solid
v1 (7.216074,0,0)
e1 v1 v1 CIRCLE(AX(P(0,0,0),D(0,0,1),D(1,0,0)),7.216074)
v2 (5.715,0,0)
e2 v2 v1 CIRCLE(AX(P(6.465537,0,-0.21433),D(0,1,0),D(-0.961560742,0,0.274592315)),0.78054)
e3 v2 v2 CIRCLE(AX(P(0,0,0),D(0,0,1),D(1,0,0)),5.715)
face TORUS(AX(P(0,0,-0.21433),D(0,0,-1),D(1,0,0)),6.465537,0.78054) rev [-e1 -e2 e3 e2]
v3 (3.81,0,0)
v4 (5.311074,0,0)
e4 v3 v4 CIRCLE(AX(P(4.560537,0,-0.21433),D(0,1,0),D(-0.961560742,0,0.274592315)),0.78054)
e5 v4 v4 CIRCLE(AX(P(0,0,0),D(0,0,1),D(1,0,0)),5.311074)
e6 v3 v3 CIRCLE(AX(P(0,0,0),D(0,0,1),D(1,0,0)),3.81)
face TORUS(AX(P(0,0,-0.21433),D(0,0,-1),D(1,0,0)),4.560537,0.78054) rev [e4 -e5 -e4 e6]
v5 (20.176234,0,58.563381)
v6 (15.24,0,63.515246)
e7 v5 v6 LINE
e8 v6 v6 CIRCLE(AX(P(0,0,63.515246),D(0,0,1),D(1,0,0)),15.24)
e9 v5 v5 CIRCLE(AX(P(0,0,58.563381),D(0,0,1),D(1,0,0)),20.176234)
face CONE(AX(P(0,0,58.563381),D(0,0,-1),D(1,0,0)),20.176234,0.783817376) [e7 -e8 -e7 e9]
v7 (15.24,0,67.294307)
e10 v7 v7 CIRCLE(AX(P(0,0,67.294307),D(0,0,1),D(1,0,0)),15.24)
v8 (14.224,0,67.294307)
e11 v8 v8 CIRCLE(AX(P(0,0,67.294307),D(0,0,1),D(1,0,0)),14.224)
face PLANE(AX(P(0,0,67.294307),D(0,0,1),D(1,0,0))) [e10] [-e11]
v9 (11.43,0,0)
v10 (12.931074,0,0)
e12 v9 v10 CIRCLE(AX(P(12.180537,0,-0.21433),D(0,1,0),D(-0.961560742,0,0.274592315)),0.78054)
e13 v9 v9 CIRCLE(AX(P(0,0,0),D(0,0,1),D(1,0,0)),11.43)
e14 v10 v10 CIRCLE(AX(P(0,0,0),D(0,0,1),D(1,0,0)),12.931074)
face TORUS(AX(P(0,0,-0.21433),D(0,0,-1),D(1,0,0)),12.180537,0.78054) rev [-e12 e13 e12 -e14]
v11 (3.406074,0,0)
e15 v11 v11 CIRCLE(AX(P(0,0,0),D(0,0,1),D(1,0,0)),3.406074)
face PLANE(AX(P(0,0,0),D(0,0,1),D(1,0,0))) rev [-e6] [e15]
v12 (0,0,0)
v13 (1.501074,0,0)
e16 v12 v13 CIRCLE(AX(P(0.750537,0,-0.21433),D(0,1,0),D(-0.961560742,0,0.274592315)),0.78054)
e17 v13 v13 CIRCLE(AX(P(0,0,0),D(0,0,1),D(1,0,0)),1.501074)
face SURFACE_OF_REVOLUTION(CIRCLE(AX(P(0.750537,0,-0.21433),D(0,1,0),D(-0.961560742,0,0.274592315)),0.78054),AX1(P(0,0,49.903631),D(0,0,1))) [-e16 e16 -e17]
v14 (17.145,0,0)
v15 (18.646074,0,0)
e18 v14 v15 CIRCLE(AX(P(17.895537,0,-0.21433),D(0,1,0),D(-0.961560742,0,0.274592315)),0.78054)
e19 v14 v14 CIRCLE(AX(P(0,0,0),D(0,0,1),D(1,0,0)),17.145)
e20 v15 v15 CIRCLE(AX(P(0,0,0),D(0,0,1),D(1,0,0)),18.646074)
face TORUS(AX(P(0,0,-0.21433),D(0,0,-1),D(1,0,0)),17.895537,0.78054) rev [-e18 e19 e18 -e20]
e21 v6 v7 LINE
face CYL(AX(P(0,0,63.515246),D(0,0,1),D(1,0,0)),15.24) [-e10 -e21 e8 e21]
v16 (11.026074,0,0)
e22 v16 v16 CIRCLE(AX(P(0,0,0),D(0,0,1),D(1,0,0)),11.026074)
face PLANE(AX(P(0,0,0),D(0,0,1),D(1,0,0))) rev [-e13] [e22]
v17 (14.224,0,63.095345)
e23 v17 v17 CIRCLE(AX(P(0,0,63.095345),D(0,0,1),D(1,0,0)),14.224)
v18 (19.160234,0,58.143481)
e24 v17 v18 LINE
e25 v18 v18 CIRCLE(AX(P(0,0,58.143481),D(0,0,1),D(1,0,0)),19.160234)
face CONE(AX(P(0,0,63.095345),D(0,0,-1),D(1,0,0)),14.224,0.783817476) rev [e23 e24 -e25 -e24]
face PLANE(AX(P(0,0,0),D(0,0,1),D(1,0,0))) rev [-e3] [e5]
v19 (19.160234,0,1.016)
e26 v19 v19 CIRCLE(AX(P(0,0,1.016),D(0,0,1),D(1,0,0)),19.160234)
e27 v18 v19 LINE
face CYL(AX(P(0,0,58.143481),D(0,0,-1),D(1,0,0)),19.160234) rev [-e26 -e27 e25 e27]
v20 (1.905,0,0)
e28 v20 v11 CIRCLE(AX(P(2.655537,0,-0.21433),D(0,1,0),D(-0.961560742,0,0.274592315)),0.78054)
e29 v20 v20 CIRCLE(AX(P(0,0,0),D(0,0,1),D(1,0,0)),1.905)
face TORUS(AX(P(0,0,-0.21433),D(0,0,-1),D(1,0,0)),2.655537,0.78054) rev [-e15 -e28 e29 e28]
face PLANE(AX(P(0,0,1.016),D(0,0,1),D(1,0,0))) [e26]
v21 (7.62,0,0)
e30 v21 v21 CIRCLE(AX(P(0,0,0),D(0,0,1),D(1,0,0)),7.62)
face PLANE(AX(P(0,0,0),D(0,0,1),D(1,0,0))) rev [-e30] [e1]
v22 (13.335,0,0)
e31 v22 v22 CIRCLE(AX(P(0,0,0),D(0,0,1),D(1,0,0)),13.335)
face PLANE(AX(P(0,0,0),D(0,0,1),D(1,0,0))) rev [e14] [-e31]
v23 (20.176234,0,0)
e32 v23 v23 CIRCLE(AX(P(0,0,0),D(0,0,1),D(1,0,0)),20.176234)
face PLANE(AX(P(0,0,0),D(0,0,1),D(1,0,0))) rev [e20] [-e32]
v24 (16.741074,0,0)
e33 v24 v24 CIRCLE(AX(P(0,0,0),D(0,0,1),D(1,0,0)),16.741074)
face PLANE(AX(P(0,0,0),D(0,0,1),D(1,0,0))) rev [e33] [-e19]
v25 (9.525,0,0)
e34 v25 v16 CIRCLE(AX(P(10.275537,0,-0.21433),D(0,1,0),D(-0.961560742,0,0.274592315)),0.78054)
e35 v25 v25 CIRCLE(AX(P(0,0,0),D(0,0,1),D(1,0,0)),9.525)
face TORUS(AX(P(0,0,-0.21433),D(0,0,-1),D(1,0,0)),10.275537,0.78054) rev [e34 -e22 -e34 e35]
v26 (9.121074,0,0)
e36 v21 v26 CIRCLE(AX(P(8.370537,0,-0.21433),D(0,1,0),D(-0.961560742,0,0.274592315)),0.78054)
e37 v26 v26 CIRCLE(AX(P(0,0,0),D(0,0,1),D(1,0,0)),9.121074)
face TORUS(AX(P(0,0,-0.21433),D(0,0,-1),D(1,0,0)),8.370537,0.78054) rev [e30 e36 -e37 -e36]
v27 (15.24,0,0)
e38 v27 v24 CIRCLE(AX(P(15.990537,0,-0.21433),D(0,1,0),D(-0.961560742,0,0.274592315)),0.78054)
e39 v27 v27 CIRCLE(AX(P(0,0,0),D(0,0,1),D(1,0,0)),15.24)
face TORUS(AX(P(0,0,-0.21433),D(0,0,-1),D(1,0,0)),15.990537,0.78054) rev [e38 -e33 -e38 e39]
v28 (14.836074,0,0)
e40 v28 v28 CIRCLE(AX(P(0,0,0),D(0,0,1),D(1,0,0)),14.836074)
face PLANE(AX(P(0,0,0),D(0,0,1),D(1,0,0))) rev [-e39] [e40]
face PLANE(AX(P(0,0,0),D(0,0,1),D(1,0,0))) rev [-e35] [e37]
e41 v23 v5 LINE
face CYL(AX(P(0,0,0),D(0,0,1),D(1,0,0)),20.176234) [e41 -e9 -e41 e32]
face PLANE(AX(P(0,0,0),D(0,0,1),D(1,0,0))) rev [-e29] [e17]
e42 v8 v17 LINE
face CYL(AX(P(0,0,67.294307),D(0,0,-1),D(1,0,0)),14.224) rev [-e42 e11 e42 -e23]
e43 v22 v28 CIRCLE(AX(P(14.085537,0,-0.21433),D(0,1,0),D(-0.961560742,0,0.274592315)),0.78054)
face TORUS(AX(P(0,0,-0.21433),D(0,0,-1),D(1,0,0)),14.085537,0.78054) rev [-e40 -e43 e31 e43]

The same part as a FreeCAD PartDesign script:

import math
import FreeCAD as App
import Part
import Sketcher
from FreeCAD import Vector
Q = App.Units.Quantity

doc = App.newDocument("Part")
body = doc.addObject("PartDesign::Body", "Body")

# Sketch on XZ plane
sketch1 = body.newObject("Sketcher::SketchObject", "Sketch")
sketch1.AttachmentSupport = (doc.getObject("XZ_Plane"), [""])
sketch1.MapMode = "FlatFace"
sketch1.addGeometry([
    Part.LineSegment(Vector(0, 1.02, 0), Vector(0, 0, 0)),  # 0
    Part.ArcOfCircle(Part.Circle(Vector(0.75, -0.21, 0), Vector(0, 0, 1), 0.78), math.radians(16), math.radians(164)),  # 1
    Part.LineSegment(Vector(1.5, 0, 0), Vector(1.91, 0, 0)),  # 2
    Part.ArcOfCircle(Part.Circle(Vector(2.66, -0.21, 0), Vector(0, 0, 1), 0.78), math.radians(16), math.radians(164)),  # 3
    Part.LineSegment(Vector(3.41, 0, 0), Vector(3.81, 0, 0)),  # 4
    Part.ArcOfCircle(Part.Circle(Vector(4.56, -0.21, 0), Vector(0, 0, 1), 0.78), math.radians(16), math.radians(164)),  # 5
    Part.LineSegment(Vector(5.31, 0, 0), Vector(5.71, 0, 0)),  # 6
    Part.ArcOfCircle(Part.Circle(Vector(6.47, -0.21, 0), Vector(0, 0, 1), 0.78), math.radians(16), math.radians(164)),  # 7
    Part.LineSegment(Vector(7.22, 0, 0), Vector(7.62, 0, 0)),  # 8
    Part.ArcOfCircle(Part.Circle(Vector(8.37, -0.21, 0), Vector(0, 0, 1), 0.78), math.radians(16), math.radians(164)),  # 9
    Part.LineSegment(Vector(9.12, 0, 0), Vector(9.53, 0, 0)),  # 10
    Part.ArcOfCircle(Part.Circle(Vector(10.28, -0.21, 0), Vector(0, 0, 1), 0.78), math.radians(16), math.radians(164)),  # 11
    Part.LineSegment(Vector(11.03, 0, 0), Vector(11.43, 0, 0)),  # 12
    Part.ArcOfCircle(Part.Circle(Vector(12.18, -0.21, 0), Vector(0, 0, 1), 0.78), math.radians(16), math.radians(164)),  # 13
    Part.LineSegment(Vector(12.93, 0, 0), Vector(13.34, 0, 0)),  # 14
    Part.ArcOfCircle(Part.Circle(Vector(14.09, -0.21, 0), Vector(0, 0, 1), 0.78), math.radians(16), math.radians(164)),  # 15
    Part.LineSegment(Vector(14.84, 0, 0), Vector(15.24, 0, 0)),  # 16
    Part.ArcOfCircle(Part.Circle(Vector(15.99, -0.21, 0), Vector(0, 0, 1), 0.78), math.radians(16), math.radians(164)),  # 17
    Part.LineSegment(Vector(16.74, 0, 0), Vector(17.14, 0, 0)),  # 18
    Part.ArcOfCircle(Part.Circle(Vector(17.9, -0.21, 0), Vector(0, 0, 1), 0.78), math.radians(16), math.radians(164)),  # 19
    Part.LineSegment(Vector(18.65, 0, 0), Vector(20.18, 0, 0)),  # 20
    Part.LineSegment(Vector(20.18, 0, 0), Vector(20.18, 58.56, 0)),  # 21
    Part.LineSegment(Vector(20.18, 58.56, 0), Vector(15.24, 63.52, 0)),  # 22
    Part.LineSegment(Vector(15.24, 63.52, 0), Vector(15.24, 67.29, 0)),  # 23
    Part.LineSegment(Vector(15.24, 67.29, 0), Vector(14.22, 67.29, 0)),  # 24
    Part.LineSegment(Vector(14.22, 67.29, 0), Vector(14.22, 63.1, 0)),  # 25
    Part.LineSegment(Vector(14.22, 63.1, 0), Vector(19.16, 58.14, 0)),  # 26
    Part.LineSegment(Vector(19.16, 58.14, 0), Vector(19.16, 1.02, 0)),  # 27
    Part.LineSegment(Vector(19.16, 1.02, 0), Vector(0, 1.02, 0)),  # 28
], False)
sketch1.addConstraint([
    Sketcher.Constraint("Coincident", 0, 2, 1, 2),
    Sketcher.Constraint("Coincident", 1, 1, 2, 1),
    Sketcher.Constraint("Coincident", 2, 2, 3, 2),
    Sketcher.Constraint("Coincident", 3, 1, 4, 1),
    Sketcher.Constraint("Coincident", 4, 2, 5, 2),
    Sketcher.Constraint("Coincident", 5, 1, 6, 1),
    Sketcher.Constraint("Coincident", 6, 2, 7, 2),
    Sketcher.Constraint("Coincident", 7, 1, 8, 1),
    Sketcher.Constraint("Coincident", 8, 2, 9, 2),
    Sketcher.Constraint("Coincident", 9, 1, 10, 1),
    Sketcher.Constraint("Coincident", 10, 2, 11, 2),
    Sketcher.Constraint("Coincident", 11, 1, 12, 1),
    Sketcher.Constraint("Coincident", 12, 2, 13, 2),
    Sketcher.Constraint("Coincident", 13, 1, 14, 1),
    Sketcher.Constraint("Coincident", 14, 2, 15, 2),
    Sketcher.Constraint("Coincident", 15, 1, 16, 1),
    Sketcher.Constraint("Coincident", 16, 2, 17, 2),
    Sketcher.Constraint("Coincident", 17, 1, 18, 1),
    Sketcher.Constraint("Coincident", 18, 2, 19, 2),
    Sketcher.Constraint("Coincident", 19, 1, 20, 1),
    Sketcher.Constraint("Coincident", 20, 2, 21, 1),
    Sketcher.Constraint("Coincident", 21, 2, 22, 1),
    Sketcher.Constraint("Coincident", 22, 2, 23, 1),
    Sketcher.Constraint("Coincident", 23, 2, 24, 1),
    Sketcher.Constraint("Coincident", 24, 2, 25, 1),
    Sketcher.Constraint("Coincident", 25, 2, 26, 1),
    Sketcher.Constraint("Coincident", 26, 2, 27, 1),
    Sketcher.Constraint("Coincident", 27, 2, 28, 1),
    Sketcher.Constraint("Coincident", 28, 2, 0, 1),
    Sketcher.Constraint("Vertical", 0),
    Sketcher.Constraint("Horizontal", 2),
    Sketcher.Constraint("Horizontal", 4),
    Sketcher.Constraint("Horizontal", 6),
    Sketcher.Constraint("Horizontal", 8),
    Sketcher.Constraint("Horizontal", 10),
    Sketcher.Constraint("Horizontal", 12),
    Sketcher.Constraint("Horizontal", 14),
    Sketcher.Constraint("Horizontal", 16),
    Sketcher.Constraint("Horizontal", 18),
    Sketcher.Constraint("Horizontal", 20),
    Sketcher.Constraint("Vertical", 21),
    Sketcher.Constraint("Vertical", 23),
    Sketcher.Constraint("Horizontal", 24),
    Sketcher.Constraint("Vertical", 25),
    Sketcher.Constraint("Vertical", 27),
    Sketcher.Constraint("Horizontal", 28),
    Sketcher.Constraint("Coincident", 0, 2, -1, 1),
    Sketcher.Constraint("Equal", 1, 3),
    Sketcher.Constraint("Equal", 3, 5),
    Sketcher.Constraint("Equal", 5, 7),
    Sketcher.Constraint("Equal", 7, 9),
    Sketcher.Constraint("Equal", 9, 11),
    Sketcher.Constraint("Equal", 11, 13),
    Sketcher.Constraint("Equal", 13, 15),
    Sketcher.Constraint("Equal", 15, 17),
    Sketcher.Constraint("Equal", 17, 19),
    Sketcher.Constraint("PointOnObject", 1, 1, -1),
    Sketcher.Constraint("PointOnObject", 3, 1, -1),
    Sketcher.Constraint("PointOnObject", 5, 1, -1),
    Sketcher.Constraint("PointOnObject", 7, 1, -1),
    Sketcher.Constraint("PointOnObject", 9, 1, -1),
    Sketcher.Constraint("PointOnObject", 11, 1, -1),
    Sketcher.Constraint("PointOnObject", 13, 1, -1),
    Sketcher.Constraint("PointOnObject", 15, 1, -1),
    Sketcher.Constraint("PointOnObject", 17, 1, -1),
    Sketcher.Constraint("PointOnObject", 19, 1, -1),
    Sketcher.Constraint("Parallel", 22, 26),
    Sketcher.Constraint("Horizontal", 1, 3, 3, 3),
    Sketcher.Constraint("Horizontal", 3, 3, 5, 3),
    Sketcher.Constraint("Horizontal", 5, 3, 7, 3),
    Sketcher.Constraint("Horizontal", 7, 3, 9, 3),
    Sketcher.Constraint("Horizontal", 9, 3, 11, 3),
    Sketcher.Constraint("Horizontal", 11, 3, 13, 3),
    Sketcher.Constraint("Horizontal", 13, 3, 15, 3),
    Sketcher.Constraint("Horizontal", 15, 3, 17, 3),
    Sketcher.Constraint("Horizontal", 17, 3, 19, 3),
    Sketcher.Constraint("Vertical", 16, 2, 22, 2),
    Sketcher.Constraint("Equal", 2, 4),
    Sketcher.Constraint("Equal", 4, 6),
    Sketcher.Constraint("Equal", 6, 8),
    Sketcher.Constraint("Equal", 8, 10),
    Sketcher.Constraint("Equal", 10, 12),
    Sketcher.Constraint("Equal", 12, 14),
    Sketcher.Constraint("Equal", 14, 16),
    Sketcher.Constraint("Equal", 16, 18),
    Sketcher.Constraint("Equal", 24, 0),
    Sketcher.Constraint("Equal", 22, 26),
    Sketcher.Constraint("DistanceX", 24, 2, 24, 1, Q("0.04 in")),
    Sketcher.Constraint("DistanceX", -1, 1, 8, 2, Q("0.3 in")),
    Sketcher.Constraint("Radius", 1, Q("0.78054 mm")),
    Sketcher.Constraint("DistanceX", 20, 1, 20, 2, Q("1.53016 mm")),
    Sketcher.Constraint("DistanceY", 21, 1, 21, 2, Q("58.563381 mm")),
    Sketcher.Constraint("DistanceY", 23, 1, 23, 2, Q("3.779061 mm")),
    Sketcher.Constraint("DistanceY", 27, 2, 27, 1, Q("57.127481 mm")),
    Sketcher.Constraint("Distance", 22, Q("6.991951 mm")),
    Sketcher.Constraint("DistanceX", 2, 1, 2, 2, Q("0.403926 mm")),
])
revolution = body.newObject("PartDesign::Revolution", "Revolution")
revolution.Profile = sketch1
revolution.ReferenceAxis = (sketch1, ["V_Axis"])
revolution.Angle = 360

doc.recompute()
